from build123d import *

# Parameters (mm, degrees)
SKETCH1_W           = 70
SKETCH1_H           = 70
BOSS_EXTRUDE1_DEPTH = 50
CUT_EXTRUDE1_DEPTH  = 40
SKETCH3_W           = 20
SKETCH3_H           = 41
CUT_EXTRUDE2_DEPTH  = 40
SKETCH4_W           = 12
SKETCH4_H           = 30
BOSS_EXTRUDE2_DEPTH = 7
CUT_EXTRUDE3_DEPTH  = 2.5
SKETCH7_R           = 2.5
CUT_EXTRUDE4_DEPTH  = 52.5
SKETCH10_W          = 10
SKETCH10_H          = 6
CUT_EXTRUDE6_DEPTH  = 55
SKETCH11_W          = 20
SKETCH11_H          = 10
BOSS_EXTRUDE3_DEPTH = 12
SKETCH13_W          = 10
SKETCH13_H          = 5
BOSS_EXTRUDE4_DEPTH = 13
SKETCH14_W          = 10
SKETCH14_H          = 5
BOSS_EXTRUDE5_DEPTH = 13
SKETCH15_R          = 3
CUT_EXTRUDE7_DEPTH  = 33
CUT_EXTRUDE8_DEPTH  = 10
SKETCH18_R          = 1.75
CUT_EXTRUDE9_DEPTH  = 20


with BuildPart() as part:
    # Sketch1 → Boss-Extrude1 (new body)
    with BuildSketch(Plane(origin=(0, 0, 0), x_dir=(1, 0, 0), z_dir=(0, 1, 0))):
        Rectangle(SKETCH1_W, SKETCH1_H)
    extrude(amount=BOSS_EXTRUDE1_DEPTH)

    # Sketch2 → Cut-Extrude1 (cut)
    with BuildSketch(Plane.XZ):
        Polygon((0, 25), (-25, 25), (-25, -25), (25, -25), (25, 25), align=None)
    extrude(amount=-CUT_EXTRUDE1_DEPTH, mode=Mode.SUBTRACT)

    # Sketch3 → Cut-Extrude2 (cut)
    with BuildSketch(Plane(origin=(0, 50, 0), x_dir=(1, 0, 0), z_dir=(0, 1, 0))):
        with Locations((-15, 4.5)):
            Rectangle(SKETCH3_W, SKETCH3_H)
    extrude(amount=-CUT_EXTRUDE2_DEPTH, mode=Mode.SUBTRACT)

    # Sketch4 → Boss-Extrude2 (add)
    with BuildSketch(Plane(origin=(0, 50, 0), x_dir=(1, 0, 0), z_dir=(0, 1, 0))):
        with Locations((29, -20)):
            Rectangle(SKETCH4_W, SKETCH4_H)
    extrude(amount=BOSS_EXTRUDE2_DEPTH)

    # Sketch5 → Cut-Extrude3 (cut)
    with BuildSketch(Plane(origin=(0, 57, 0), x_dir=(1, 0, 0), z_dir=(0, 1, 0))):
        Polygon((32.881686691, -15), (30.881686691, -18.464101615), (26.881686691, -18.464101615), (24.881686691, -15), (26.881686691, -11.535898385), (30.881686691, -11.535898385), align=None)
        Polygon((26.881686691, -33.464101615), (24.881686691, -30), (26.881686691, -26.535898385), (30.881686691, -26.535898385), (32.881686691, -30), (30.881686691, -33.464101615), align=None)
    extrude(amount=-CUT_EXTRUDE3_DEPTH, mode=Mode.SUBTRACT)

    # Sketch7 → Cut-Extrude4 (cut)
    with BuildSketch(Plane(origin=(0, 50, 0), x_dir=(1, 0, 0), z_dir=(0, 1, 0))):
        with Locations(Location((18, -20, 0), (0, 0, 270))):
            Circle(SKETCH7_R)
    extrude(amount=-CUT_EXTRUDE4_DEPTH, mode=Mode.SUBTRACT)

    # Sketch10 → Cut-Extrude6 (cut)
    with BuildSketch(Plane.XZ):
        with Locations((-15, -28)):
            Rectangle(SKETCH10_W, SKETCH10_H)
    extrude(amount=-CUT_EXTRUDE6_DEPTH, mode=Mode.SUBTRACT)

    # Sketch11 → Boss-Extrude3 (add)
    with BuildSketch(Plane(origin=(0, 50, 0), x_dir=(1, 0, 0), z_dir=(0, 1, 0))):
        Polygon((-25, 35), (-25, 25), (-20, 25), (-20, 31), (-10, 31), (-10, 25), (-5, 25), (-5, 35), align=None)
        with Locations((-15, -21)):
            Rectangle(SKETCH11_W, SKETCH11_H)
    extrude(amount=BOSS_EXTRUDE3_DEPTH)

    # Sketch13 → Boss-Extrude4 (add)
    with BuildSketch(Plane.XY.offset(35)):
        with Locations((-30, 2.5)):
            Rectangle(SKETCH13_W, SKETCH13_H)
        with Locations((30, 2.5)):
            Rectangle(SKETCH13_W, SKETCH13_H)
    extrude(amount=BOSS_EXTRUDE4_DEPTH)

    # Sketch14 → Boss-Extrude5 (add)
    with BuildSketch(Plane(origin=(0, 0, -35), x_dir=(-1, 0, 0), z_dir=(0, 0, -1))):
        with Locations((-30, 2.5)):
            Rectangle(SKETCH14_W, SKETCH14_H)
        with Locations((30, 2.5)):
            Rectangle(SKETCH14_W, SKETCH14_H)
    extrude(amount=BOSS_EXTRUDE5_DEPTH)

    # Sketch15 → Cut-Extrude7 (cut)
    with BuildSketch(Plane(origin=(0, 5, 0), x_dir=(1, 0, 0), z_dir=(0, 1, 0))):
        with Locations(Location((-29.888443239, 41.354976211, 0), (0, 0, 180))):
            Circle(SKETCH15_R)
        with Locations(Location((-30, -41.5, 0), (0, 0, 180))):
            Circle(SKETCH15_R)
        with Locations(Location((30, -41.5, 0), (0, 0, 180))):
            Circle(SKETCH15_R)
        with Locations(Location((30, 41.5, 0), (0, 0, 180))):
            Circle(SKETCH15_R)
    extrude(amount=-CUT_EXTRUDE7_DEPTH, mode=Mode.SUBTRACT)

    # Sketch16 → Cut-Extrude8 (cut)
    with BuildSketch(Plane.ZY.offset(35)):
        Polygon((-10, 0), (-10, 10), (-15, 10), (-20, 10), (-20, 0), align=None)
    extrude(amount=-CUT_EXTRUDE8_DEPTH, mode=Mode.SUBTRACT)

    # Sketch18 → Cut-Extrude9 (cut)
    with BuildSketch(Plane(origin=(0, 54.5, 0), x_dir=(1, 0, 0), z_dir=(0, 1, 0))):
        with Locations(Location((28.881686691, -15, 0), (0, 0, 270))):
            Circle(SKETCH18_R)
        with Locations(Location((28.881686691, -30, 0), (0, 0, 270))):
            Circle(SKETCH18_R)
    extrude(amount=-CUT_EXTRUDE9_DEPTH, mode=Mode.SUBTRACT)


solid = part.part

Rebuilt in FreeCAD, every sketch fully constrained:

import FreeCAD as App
import Part
import Sketcher
from FreeCAD import Vector
Q = App.Units.Quantity


def add_polygon(sketch, points):
    """Adds a closed chain of lines whose ends are joined by coincident constraints."""
    first, n = sketch.GeometryCount, len(points)
    for a, b in zip(points, points[1:] + points[:1]):
        sketch.addGeometry(Part.LineSegment(App.Vector(*a, 0), App.Vector(*b, 0)), False)
    for i in range(n):
        sketch.addConstraint(Sketcher.Constraint("Coincident", first + i, 2, first + (i + 1) % n, 1))

doc = App.newDocument("Part")
params = doc.addObject("Spreadsheet::Sheet", "Params")
for row, (alias, value) in enumerate([
    ("sketch1_width", "70 mm"),
    ("pad1_length", "50 mm"),
    ("sketch2_width", "50 mm"),
    ("pocket1_length", "40 mm"),
    ("sketch3_width", "20 mm"),
    ("sketch3_height", "41 mm"),
    ("pocket2_length", "40 mm"),
    ("sketch4_width", "12 mm"),
    ("sketch4_height", "30 mm"),
    ("pad2_length", "7 mm"),
    ("sketch5_width", "4 mm"),
    ("sketch5_length", "4 mm"),
    ("pocket3_length", "2.5 mm"),
    ("sketch6_diameter", "5 mm"),
    ("pocket4_length", "52.5 mm"),
    ("sketch7_width", "10 mm"),
    ("sketch7_height", "6 mm"),
    ("pocket5_length", "55 mm"),
    ("sketch8_width", "5 mm"),
    ("sketch8_width2", "10 mm"),
    ("sketch8_height", "6 mm"),
    ("pad3_length", "12 mm"),
    ("sketch9_width", "10 mm"),
    ("sketch9_height", "5 mm"),
    ("pad4_length", "13 mm"),
    ("sketch10_width", "10 mm"),
    ("sketch10_height", "5 mm"),
    ("pad5_length", "13 mm"),
    ("sketch11_diameter", "6 mm"),
    ("pocket6_length", "33 mm"),
    ("sketch12_width", "10 mm"),
    ("pocket7_length", "10 mm"),
    ("sketch13_diameter", "3.5 mm"),
    ("pocket8_length", "20 mm"),
], start=1):
    params.set(f"A{row}", alias)
    params.set(f"B{row}", "=" + value)
    params.setAlias(f"B{row}", alias)

body = doc.addObject("PartDesign::Body", "Body")

sketch1 = body.newObject("Sketcher::SketchObject", "Sketch")
sketch1.AttachmentSupport = (doc.getObject("XZ_Plane"), [""])
sketch1.MapMode = "FlatFace"
add_polygon(sketch1, [(-35, -35), (-35, 35), (35, 35), (35, -35)])
sketch1.addConstraint([
    Sketcher.Constraint("Vertical", 0),
    Sketcher.Constraint("Horizontal", 1),
    Sketcher.Constraint("Vertical", 2),
    Sketcher.Constraint("Horizontal", 3),
    Sketcher.Constraint("Symmetric", 0, 2, 2, 2, -1, 1),
    Sketcher.Constraint("Equal", 3, 0),
    Sketcher.Constraint("DistanceX", 1, 1, 1, 2, Q("70 mm")),
])
sketch1.setExpression("Constraints[10]", "Params.sketch1_width")
pad1 = body.newObject("PartDesign::Pad", "Pad")
pad1.Profile = sketch1
pad1.setExpression("Length", "Params.pad1_length")
pad1.Reversed = True

sketch2 = body.newObject("Sketcher::SketchObject", "Sketch001")
sketch2.AttachmentSupport = (doc.getObject("XZ_Plane"), [""])
sketch2.MapMode = "FlatFace"
add_polygon(sketch2, [(-25, 25), (-25, -25), (25, -25), (25, 25)])
sketch2.addConstraint([
    Sketcher.Constraint("Vertical", 0),
    Sketcher.Constraint("Horizontal", 1),
    Sketcher.Constraint("Vertical", 2),
    Sketcher.Constraint("Horizontal", 3),
    Sketcher.Constraint("Symmetric", 0, 2, 2, 2, -1, 1),
    Sketcher.Constraint("Equal", 3, 0),
    Sketcher.Constraint("DistanceX", 1, 1, 1, 2, Q("50 mm")),
])
sketch2.setExpression("Constraints[10]", "Params.sketch2_width")
pocket1 = body.newObject("PartDesign::Pocket", "Pocket")
pocket1.Profile = sketch2
pocket1.setExpression("Length", "Params.pocket1_length")

sketch3 = body.newObject("Sketcher::SketchObject", "Sketch002")
sketch3.AttachmentSupport = (doc.getObject("XZ_Plane"), [""])
sketch3.MapMode = "FlatFace"
sketch3.AttachmentOffset = App.Placement(Vector(0, 0, -50), App.Rotation())
add_polygon(sketch3, [(-25, -25), (-25, 16), (-5, 16), (-5, -25)])
sketch3.addConstraint([
    Sketcher.Constraint("Vertical", 0),
    Sketcher.Constraint("Horizontal", 1),
    Sketcher.Constraint("Vertical", 2),
    Sketcher.Constraint("Horizontal", 3),
    Sketcher.Constraint("DistanceX", 1, 1, 1, 2, Q("20 mm")),
    Sketcher.Constraint("DistanceY", 0, 1, 0, 2, Q("41 mm")),
    Sketcher.Constraint("DistanceX", 0, 2, -1, 1, Q("25 mm")),
    Sketcher.Constraint("DistanceY", -1, 1, 0, 2, Q("16 mm")),
])
sketch3.setExpression("Constraints[8]", "Params.sketch3_width")
sketch3.setExpression("Constraints[9]", "Params.sketch3_height")
pocket2 = body.newObject("PartDesign::Pocket", "Pocket001")
pocket2.Profile = sketch3
pocket2.setExpression("Length", "Params.pocket2_length")
pocket2.Reversed = True

sketch4 = body.newObject("Sketcher::SketchObject", "Sketch003")
sketch4.AttachmentSupport = (doc.getObject("XZ_Plane"), [""])
sketch4.MapMode = "FlatFace"
sketch4.AttachmentOffset = App.Placement(Vector(0, 0, -50), App.Rotation())
add_polygon(sketch4, [(23, 5), (23, 35), (35, 35), (35, 5)])
sketch4.addConstraint([
    Sketcher.Constraint("Vertical", 0),
    Sketcher.Constraint("Horizontal", 1),
    Sketcher.Constraint("Vertical", 2),
    Sketcher.Constraint("Horizontal", 3),
    Sketcher.Constraint("DistanceX", 1, 1, 1, 2, Q("12 mm")),
    Sketcher.Constraint("DistanceY", 0, 1, 0, 2, Q("30 mm")),
    Sketcher.Constraint("DistanceX", -1, 1, 0, 2, Q("23 mm")),
    Sketcher.Constraint("DistanceY", -1, 1, 0, 2, Q("35 mm")),
])
sketch4.setExpression("Constraints[8]", "Params.sketch4_width")
sketch4.setExpression("Constraints[9]", "Params.sketch4_height")
pad2 = body.newObject("PartDesign::Pad", "Pad001")
pad2.Profile = sketch4
pad2.setExpression("Length", "Params.pad2_length")
pad2.Reversed = True

sketch5 = body.newObject("Sketcher::SketchObject", "Sketch004")
sketch5.AttachmentSupport = (doc.getObject("XZ_Plane"), [""])
sketch5.MapMode = "FlatFace"
sketch5.AttachmentOffset = App.Placement(Vector(0, 0, -57), App.Rotation())
add_polygon(sketch5, [(30.9, 18.5), (32.9, 15), (30.9, 11.5), (26.9, 11.5), (24.9, 15), (26.9, 18.5)])
add_polygon(sketch5, [(24.9, 30), (26.9, 33.5), (30.9, 33.5), (32.9, 30), (30.9, 26.5), (26.9, 26.5)])
sketch5.addConstraint([
    Sketcher.Constraint("Horizontal", 2),
    Sketcher.Constraint("Horizontal", 5),
    Sketcher.Constraint("Horizontal", 7),
    Sketcher.Constraint("Horizontal", 10),
    Sketcher.Constraint("Parallel", 0, 3),
    Sketcher.Constraint("Parallel", 1, 4),
    Sketcher.Constraint("Parallel", 4, 6),
    Sketcher.Constraint("Parallel", 3, 8),
    Sketcher.Constraint("Parallel", 6, 9),
    Sketcher.Constraint("Parallel", 8, 11),
    Sketcher.Constraint("Horizontal", 0, 2, 3, 2),
    Sketcher.Constraint("Horizontal", 8, 2, 11, 2),
    Sketcher.Constraint("Vertical", 2, 2, 4, 2),
    Sketcher.Constraint("Vertical", 1, 2, 5, 2),
    Sketcher.Constraint("Vertical", 4, 2, 6, 2),
    Sketcher.Constraint("Vertical", 5, 2, 7, 2),
    Sketcher.Constraint("Vertical", 0, 2, 8, 2),
    Sketcher.Constraint("Vertical", 7, 2, 9, 2),
    Sketcher.Constraint("DistanceX", 2, 2, 2, 1, Q("4 mm")),
    Sketcher.Constraint("Angle", 0, Q("-60 deg")),
    Sketcher.Constraint("Distance", 0, Q("4 mm")),
    Sketcher.Constraint("DistanceY", -1, 1, 0, 2, Q("15 mm")),
    Sketcher.Constraint("DistanceY", -1, 1, 8, 2, Q("30 mm")),
    Sketcher.Constraint("DistanceX", -1, 1, 0, 2, Q("32.881687 mm")),
])
sketch5.setExpression("Constraints[30]", "Params.sketch5_width")
sketch5.setExpression("Constraints[32]", "Params.sketch5_length")
pocket3 = body.newObject("PartDesign::Pocket", "Pocket002")
pocket3.Profile = sketch5
pocket3.setExpression("Length", "Params.pocket3_length")
pocket3.Reversed = True

sketch6 = body.newObject("Sketcher::SketchObject", "Sketch005")
sketch6.AttachmentSupport = (doc.getObject("XZ_Plane"), [""])
sketch6.MapMode = "FlatFace"
sketch6.AttachmentOffset = App.Placement(Vector(0, 0, -50), App.Rotation())
sketch6.addGeometry(Part.Circle(Vector(18, 20, 0), Vector(0, 0, 1), 2.5), False)
sketch6.addConstraint([
    Sketcher.Constraint("Diameter", 0, Q("5 mm")),
    Sketcher.Constraint("DistanceX", -1, 1, 0, 3, Q("18 mm")),
    Sketcher.Constraint("DistanceY", -1, 1, 0, 3, Q("20 mm")),
])
sketch6.setExpression("Constraints[0]", "Params.sketch6_diameter")
pocket4 = body.newObject("PartDesign::Pocket", "Pocket003")
pocket4.Profile = sketch6
pocket4.setExpression("Length", "Params.pocket4_length")
pocket4.Reversed = True

sketch7 = body.newObject("Sketcher::SketchObject", "Sketch006")
sketch7.AttachmentSupport = (doc.getObject("XZ_Plane"), [""])
sketch7.MapMode = "FlatFace"
add_polygon(sketch7, [(-20, -25), (-20, -31), (-10, -31), (-10, -25)])
sketch7.addConstraint([
    Sketcher.Constraint("Vertical", 0),
    Sketcher.Constraint("Horizontal", 1),
    Sketcher.Constraint("Vertical", 2),
    Sketcher.Constraint("Horizontal", 3),
    Sketcher.Constraint("DistanceX", 1, 1, 1, 2, Q("10 mm")),
    Sketcher.Constraint("DistanceY", 0, 2, 0, 1, Q("6 mm")),
    Sketcher.Constraint("DistanceX", 0, 2, -1, 1, Q("20 mm")),
    Sketcher.Constraint("DistanceY", 0, 2, -1, 1, Q("31 mm")),
])
sketch7.setExpression("Constraints[8]", "Params.sketch7_width")
sketch7.setExpression("Constraints[9]", "Params.sketch7_height")
pocket5 = body.newObject("PartDesign::Pocket", "Pocket004")
pocket5.Profile = sketch7
pocket5.setExpression("Length", "Params.pocket5_length")

sketch8 = body.newObject("Sketcher::SketchObject", "Sketch007")
sketch8.AttachmentSupport = (doc.getObject("XZ_Plane"), [""])
sketch8.MapMode = "FlatFace"
sketch8.AttachmentOffset = App.Placement(Vector(0, 0, -50), App.Rotation())
add_polygon(sketch8, [(-25, -35), (-25, -25), (-20, -25), (-20, -31), (-10, -31), (-10, -25), (-5, -25), (-5, -35)])
add_polygon(sketch8, [(-25, 16), (-25, 26), (-5, 26), (-5, 16)])
sketch8.addConstraint([
    Sketcher.Constraint("Vertical", 0),
    Sketcher.Constraint("Horizontal", 1),
    Sketcher.Constraint("Vertical", 2),
    Sketcher.Constraint("Horizontal", 3),
    Sketcher.Constraint("Vertical", 4),
    Sketcher.Constraint("Horizontal", 5),
    Sketcher.Constraint("Vertical", 6),
    Sketcher.Constraint("Horizontal", 7),
    Sketcher.Constraint("Vertical", 8),
    Sketcher.Constraint("Horizontal", 9),
    Sketcher.Constraint("Vertical", 10),
    Sketcher.Constraint("Horizontal", 11),
    Sketcher.Constraint("Horizontal", 1, 2, 4, 2),
    Sketcher.Constraint("Vertical", 7, 2, 8, 2),
    Sketcher.Constraint("Vertical", 6, 2, 9, 2),
    Sketcher.Constraint("Equal", 1, 5),
    Sketcher.Constraint("Equal", 3, 0),
    Sketcher.Constraint("Equal", 6, 8),
    Sketcher.Constraint("DistanceX", 1, 1, 1, 2, Q("5 mm")),
    Sketcher.Constraint("DistanceX", 3, 1, 3, 2, Q("10 mm")),
    Sketcher.Constraint("DistanceY", 2, 2, 2, 1, Q("6 mm")),
    Sketcher.Constraint("DistanceX", 0, 2, -1, 1, Q("25 mm")),
    Sketcher.Constraint("DistanceY", 0, 2, -1, 1, Q("25 mm")),
    Sketcher.Constraint("DistanceY", -1, 1, 8, 2, Q("26 mm")),
])
sketch8.setExpression("Constraints[30]", "Params.sketch8_width")
sketch8.setExpression("Constraints[31]", "Params.sketch8_width2")
sketch8.setExpression("Constraints[32]", "Params.sketch8_height")
pad3 = body.newObject("PartDesign::Pad", "Pad002")
pad3.Profile = sketch8
pad3.setExpression("Length", "Params.pad3_length")
pad3.Reversed = True

sketch9 = body.newObject("Sketcher::SketchObject", "Sketch008")
sketch9.AttachmentSupport = (doc.getObject("XY_Plane"), [""])
sketch9.MapMode = "FlatFace"
sketch9.AttachmentOffset = App.Placement(Vector(0, 0, 35), App.Rotation())
add_polygon(sketch9, [(-35, 5), (-35, 0), (-25, 0), (-25, 5)])
add_polygon(sketch9, [(25, 5), (25, 0), (35, 0), (35, 5)])
sketch9.addConstraint([
    Sketcher.Constraint("Vertical", 0),
    Sketcher.Constraint("Horizontal", 1),
    Sketcher.Constraint("Vertical", 2),
    Sketcher.Constraint("Horizontal", 3),
    Sketcher.Constraint("Vertical", 4),
    Sketcher.Constraint("Horizontal", 5),
    Sketcher.Constraint("Vertical", 6),
    Sketcher.Constraint("Horizontal", 7),
    Sketcher.Constraint("Symmetric", 1, 2, 4, 2, -1, 1),
    Sketcher.Constraint("Symmetric", 0, 2, 5, 2, -2),
    Sketcher.Constraint("Horizontal", 3, 2, 6, 2),
    Sketcher.Constraint("DistanceX", 1, 1, 1, 2, Q("10 mm")),
    Sketcher.Constraint("DistanceY", 0, 2, 0, 1, Q("5 mm")),
    Sketcher.Constraint("DistanceX", 0, 2, -1, 1, Q("35 mm")),
])
sketch9.setExpression("Constraints[19]", "Params.sketch9_width")
sketch9.setExpression("Constraints[20]", "Params.sketch9_height")
pad4 = body.newObject("PartDesign::Pad", "Pad003")
pad4.Profile = sketch9
pad4.setExpression("Length", "Params.pad4_length")

sketch10 = body.newObject("Sketcher::SketchObject", "Sketch009")
sketch10.AttachmentSupport = (doc.getObject("XY_Plane"), [""])
sketch10.MapMode = "FlatFace"
sketch10.AttachmentOffset = App.Placement(Vector(0, 0, -35), App.Rotation())
add_polygon(sketch10, [(35, 5), (35, 0), (25, 0), (25, 5)])
add_polygon(sketch10, [(-25, 5), (-25, 0), (-35, 0), (-35, 5)])
sketch10.addConstraint([
    Sketcher.Constraint("Vertical", 0),
    Sketcher.Constraint("Horizontal", 1),
    Sketcher.Constraint("Vertical", 2),
    Sketcher.Constraint("Horizontal", 3),
    Sketcher.Constraint("Vertical", 4),
    Sketcher.Constraint("Horizontal", 5),
    Sketcher.Constraint("Vertical", 6),
    Sketcher.Constraint("Horizontal", 7),
    Sketcher.Constraint("Symmetric", 1, 2, 4, 2, -1, 1),
    Sketcher.Constraint("Symmetric", 0, 2, 5, 2, -2),
    Sketcher.Constraint("Horizontal", 3, 2, 6, 2),
    Sketcher.Constraint("DistanceX", 1, 2, 1, 1, Q("10 mm")),
    Sketcher.Constraint("DistanceY", 0, 2, 0, 1, Q("5 mm")),
    Sketcher.Constraint("DistanceX", -1, 1, 0, 2, Q("35 mm")),
])
sketch10.setExpression("Constraints[19]", "Params.sketch10_width")
sketch10.setExpression("Constraints[20]", "Params.sketch10_height")
pad5 = body.newObject("PartDesign::Pad", "Pad004")
pad5.Profile = sketch10
pad5.setExpression("Length", "Params.pad5_length")
pad5.Reversed = True

sketch11 = body.newObject("Sketcher::SketchObject", "Sketch010")
sketch11.AttachmentSupport = (doc.getObject("XZ_Plane"), [""])
sketch11.MapMode = "FlatFace"
sketch11.AttachmentOffset = App.Placement(Vector(0, 0, -5), App.Rotation())
sketch11.addGeometry([
    Part.Circle(Vector(-29.9, -41.4, 0), Vector(0, 0, 1), 3),
    Part.Circle(Vector(-30, 41.5, 0), Vector(0, 0, 1), 3),
    Part.Circle(Vector(30, 41.5, 0), Vector(0, 0, 1), 3),
    Part.Circle(Vector(30, -41.5, 0), Vector(0, 0, 1), 3),
], False)
sketch11.addConstraint([
    Sketcher.Constraint("Equal", 0, 1),
    Sketcher.Constraint("Equal", 1, 2),
    Sketcher.Constraint("Equal", 2, 3),
    Sketcher.Constraint("Symmetric", 1, 3, 3, 3, -1, 1),
    Sketcher.Constraint("Symmetric", 1, 3, 2, 3, -2),
    Sketcher.Constraint("Diameter", 0, Q("6 mm")),
    Sketcher.Constraint("DistanceX", 1, 3, -1, 1, Q("30 mm")),
    Sketcher.Constraint("DistanceY", 3, 3, 2, 3, Q("83 mm")),
    Sketcher.Constraint("DistanceX", 0, 3, -1, 1, Q("29.888443 mm")),
    Sketcher.Constraint("DistanceY", 0, 3, -1, 1, Q("41.354976 mm")),
])
sketch11.setExpression("Constraints[5]", "Params.sketch11_diameter")
pocket6 = body.newObject("PartDesign::Pocket", "Pocket005")
pocket6.Profile = sketch11
pocket6.setExpression("Length", "Params.pocket6_length")
pocket6.Reversed = True

sketch12 = body.newObject("Sketcher::SketchObject", "Sketch011")
sketch12.AttachmentSupport = (doc.getObject("YZ_Plane"), [""])
sketch12.MapMode = "FlatFace"
sketch12.AttachmentOffset = App.Placement(Vector(0, 0, -35), App.Rotation())
add_polygon(sketch12, [(0, -10), (10, -10), (10, -20), (0, -20)])
sketch12.addConstraint([
    Sketcher.Constraint("Horizontal", 0),
    Sketcher.Constraint("Vertical", 1),
    Sketcher.Constraint("Horizontal", 2),
    Sketcher.Constraint("Vertical", 3),
    Sketcher.Constraint("PointOnObject", 2, 2, -2),
    Sketcher.Constraint("Equal", 2, 1),
    Sketcher.Constraint("DistanceX", 0, 1, 0, 2, Q("10 mm")),
    Sketcher.Constraint("DistanceY", 0, 2, -1, 1, Q("10 mm")),
])
sketch12.setExpression("Constraints[10]", "Params.sketch12_width")
pocket7 = body.newObject("PartDesign::Pocket", "Pocket006")
pocket7.Profile = sketch12
pocket7.setExpression("Length", "Params.pocket7_length")
pocket7.Reversed = True

sketch13 = body.newObject("Sketcher::SketchObject", "Sketch012")
sketch13.AttachmentSupport = (doc.getObject("XZ_Plane"), [""])
sketch13.MapMode = "FlatFace"
sketch13.AttachmentOffset = App.Placement(Vector(0, 0, -54.5), App.Rotation())
sketch13.addGeometry([
    Part.Circle(Vector(28.9, 15, 0), Vector(0, 0, 1), 1.8),
    Part.Circle(Vector(28.9, 30, 0), Vector(0, 0, 1), 1.8),
], False)
sketch13.addConstraint([
    Sketcher.Constraint("Equal", 0, 1),
    Sketcher.Constraint("Vertical", 0, 3, 1, 3),
    Sketcher.Constraint("Diameter", 0, Q("3.5 mm")),
    Sketcher.Constraint("DistanceY", -1, 1, 0, 3, Q("15 mm")),
    Sketcher.Constraint("DistanceY", -1, 1, 1, 3, Q("30 mm")),
    Sketcher.Constraint("DistanceX", -1, 1, 0, 3, Q("28.881687 mm")),
])
sketch13.setExpression("Constraints[2]", "Params.sketch13_diameter")
pocket8 = body.newObject("PartDesign::Pocket", "Pocket007")
pocket8.Profile = sketch13
pocket8.setExpression("Length", "Params.pocket8_length")
pocket8.Reversed = True

doc.recompute()
